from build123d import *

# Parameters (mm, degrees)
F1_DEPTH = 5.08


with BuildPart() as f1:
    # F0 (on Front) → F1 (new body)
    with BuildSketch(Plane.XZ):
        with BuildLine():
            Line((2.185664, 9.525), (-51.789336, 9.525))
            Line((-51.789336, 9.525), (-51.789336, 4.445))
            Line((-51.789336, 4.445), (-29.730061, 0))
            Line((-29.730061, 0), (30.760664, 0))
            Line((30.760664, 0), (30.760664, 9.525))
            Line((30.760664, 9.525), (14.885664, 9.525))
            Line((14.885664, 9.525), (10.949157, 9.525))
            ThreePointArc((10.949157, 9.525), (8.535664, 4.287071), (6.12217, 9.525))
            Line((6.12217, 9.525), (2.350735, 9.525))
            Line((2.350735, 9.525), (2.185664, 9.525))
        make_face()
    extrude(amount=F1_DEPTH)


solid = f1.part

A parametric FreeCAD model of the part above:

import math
import FreeCAD as App
import Part
import Sketcher
Q = App.Units.Quantity

doc = App.newDocument("Part")
params = doc.addObject("Spreadsheet::Sheet", "Params")
for row, (alias, value) in enumerate([
    ("sketch1_height", "0.2 in"),
    ("sketch1_radius", "0.125 in"),
    ("sketch1_height2", "0.375 in"),
    ("pad1_length", "0.2 in"),
], start=1):
    params.set(f"A{row}", alias)
    params.set(f"B{row}", "=" + value)
    params.setAlias(f"B{row}", alias)

body = doc.addObject("PartDesign::Body", "Body")

# Sketch on XZ plane
sketch1 = body.newObject("Sketcher::SketchObject", "Sketch")
sketch1.AttachmentSupport = (doc.getObject("XZ_Plane"), [""])
sketch1.MapMode = "FlatFace"
sketch1.addGeometry(Part.LineSegment(App.Vector(-51.8, 9.5, 0), App.Vector(-51.8, 4.4, 0)), False)
sketch1.addGeometry(Part.LineSegment(App.Vector(-51.8, 4.4, 0), App.Vector(-29.7, 0, 0)), False)
sketch1.addGeometry(Part.LineSegment(App.Vector(-29.7, 0, 0), App.Vector(30.8, 0, 0)), False)
sketch1.addGeometry(Part.LineSegment(App.Vector(30.8, 0, 0), App.Vector(30.8, 9.5, 0)), False)
sketch1.addGeometry(Part.LineSegment(App.Vector(30.8, 9.5, 0), App.Vector(10.9, 9.5, 0)), False)
sketch1.addGeometry(Part.ArcOfCircle(Part.Circle(App.Vector(8.5, 7.5, 0), App.Vector(0, 0, 1), 3.2), math.radians(139), math.radians(401)), False)
sketch1.addGeometry(Part.LineSegment(App.Vector(6.1, 9.5, 0), App.Vector(-51.8, 9.5, 0)), False)
sketch1.addConstraint(Sketcher.Constraint("Coincident", 0, 2, 1, 1))
sketch1.addConstraint(Sketcher.Constraint("Coincident", 1, 2, 2, 1))
sketch1.addConstraint(Sketcher.Constraint("Coincident", 2, 2, 3, 1))
sketch1.addConstraint(Sketcher.Constraint("Coincident", 3, 2, 4, 1))
sketch1.addConstraint(Sketcher.Constraint("Coincident", 4, 2, 5, 2))
sketch1.addConstraint(Sketcher.Constraint("Coincident", 5, 1, 6, 1))
sketch1.addConstraint(Sketcher.Constraint("Coincident", 6, 2, 0, 1))
sketch1.addConstraint(Sketcher.Constraint("Vertical", 0))
sketch1.addConstraint(Sketcher.Constraint("Horizontal", 2))
sketch1.addConstraint(Sketcher.Constraint("Vertical", 3))
sketch1.addConstraint(Sketcher.Constraint("Horizontal", 4))
sketch1.addConstraint(Sketcher.Constraint("Horizontal", 6))
sketch1.addConstraint(Sketcher.Constraint("PointOnObject", 1, 2, -1))
sketch1.addConstraint(Sketcher.Constraint("Horizontal", 4, 2, 5, 1))
sketch1.addConstraint(Sketcher.Constraint("DistanceY", 0, 2, 0, 1, Q("0.2 in")))
sketch1.addConstraint(Sketcher.Constraint("Radius", 5, Q("0.125 in")))
sketch1.addConstraint(Sketcher.Constraint("DistanceY", 3, 1, 3, 2, Q("0.375 in")))
sketch1.addConstraint(Sketcher.Constraint("DistanceX", 0, 2, 2, 2, Q("3.25 in")))
sketch1.addConstraint(Sketcher.Constraint("DistanceX", 0, 2, 5, 3, Q("2.375 in")))
sketch1.addConstraint(Sketcher.Constraint("Distance", 1, 22.502658))
sketch1.addConstraint(Sketcher.Constraint("DistanceX", 4, 2, 4, 1, 19.811507))
sketch1.addConstraint(Sketcher.Constraint("DistanceX", 1, 2, -1, 1, 29.730061))
sketch1.setExpression("Constraints[14]", "Params.sketch1_height")
sketch1.setExpression("Constraints[15]", "Params.sketch1_radius")
sketch1.setExpression("Constraints[16]", "Params.sketch1_height2")
pad1 = body.newObject("PartDesign::Pad", "Pad")
pad1.Profile = sketch1
pad1.setExpression("Length", "Params.pad1_length")

doc.recompute()
